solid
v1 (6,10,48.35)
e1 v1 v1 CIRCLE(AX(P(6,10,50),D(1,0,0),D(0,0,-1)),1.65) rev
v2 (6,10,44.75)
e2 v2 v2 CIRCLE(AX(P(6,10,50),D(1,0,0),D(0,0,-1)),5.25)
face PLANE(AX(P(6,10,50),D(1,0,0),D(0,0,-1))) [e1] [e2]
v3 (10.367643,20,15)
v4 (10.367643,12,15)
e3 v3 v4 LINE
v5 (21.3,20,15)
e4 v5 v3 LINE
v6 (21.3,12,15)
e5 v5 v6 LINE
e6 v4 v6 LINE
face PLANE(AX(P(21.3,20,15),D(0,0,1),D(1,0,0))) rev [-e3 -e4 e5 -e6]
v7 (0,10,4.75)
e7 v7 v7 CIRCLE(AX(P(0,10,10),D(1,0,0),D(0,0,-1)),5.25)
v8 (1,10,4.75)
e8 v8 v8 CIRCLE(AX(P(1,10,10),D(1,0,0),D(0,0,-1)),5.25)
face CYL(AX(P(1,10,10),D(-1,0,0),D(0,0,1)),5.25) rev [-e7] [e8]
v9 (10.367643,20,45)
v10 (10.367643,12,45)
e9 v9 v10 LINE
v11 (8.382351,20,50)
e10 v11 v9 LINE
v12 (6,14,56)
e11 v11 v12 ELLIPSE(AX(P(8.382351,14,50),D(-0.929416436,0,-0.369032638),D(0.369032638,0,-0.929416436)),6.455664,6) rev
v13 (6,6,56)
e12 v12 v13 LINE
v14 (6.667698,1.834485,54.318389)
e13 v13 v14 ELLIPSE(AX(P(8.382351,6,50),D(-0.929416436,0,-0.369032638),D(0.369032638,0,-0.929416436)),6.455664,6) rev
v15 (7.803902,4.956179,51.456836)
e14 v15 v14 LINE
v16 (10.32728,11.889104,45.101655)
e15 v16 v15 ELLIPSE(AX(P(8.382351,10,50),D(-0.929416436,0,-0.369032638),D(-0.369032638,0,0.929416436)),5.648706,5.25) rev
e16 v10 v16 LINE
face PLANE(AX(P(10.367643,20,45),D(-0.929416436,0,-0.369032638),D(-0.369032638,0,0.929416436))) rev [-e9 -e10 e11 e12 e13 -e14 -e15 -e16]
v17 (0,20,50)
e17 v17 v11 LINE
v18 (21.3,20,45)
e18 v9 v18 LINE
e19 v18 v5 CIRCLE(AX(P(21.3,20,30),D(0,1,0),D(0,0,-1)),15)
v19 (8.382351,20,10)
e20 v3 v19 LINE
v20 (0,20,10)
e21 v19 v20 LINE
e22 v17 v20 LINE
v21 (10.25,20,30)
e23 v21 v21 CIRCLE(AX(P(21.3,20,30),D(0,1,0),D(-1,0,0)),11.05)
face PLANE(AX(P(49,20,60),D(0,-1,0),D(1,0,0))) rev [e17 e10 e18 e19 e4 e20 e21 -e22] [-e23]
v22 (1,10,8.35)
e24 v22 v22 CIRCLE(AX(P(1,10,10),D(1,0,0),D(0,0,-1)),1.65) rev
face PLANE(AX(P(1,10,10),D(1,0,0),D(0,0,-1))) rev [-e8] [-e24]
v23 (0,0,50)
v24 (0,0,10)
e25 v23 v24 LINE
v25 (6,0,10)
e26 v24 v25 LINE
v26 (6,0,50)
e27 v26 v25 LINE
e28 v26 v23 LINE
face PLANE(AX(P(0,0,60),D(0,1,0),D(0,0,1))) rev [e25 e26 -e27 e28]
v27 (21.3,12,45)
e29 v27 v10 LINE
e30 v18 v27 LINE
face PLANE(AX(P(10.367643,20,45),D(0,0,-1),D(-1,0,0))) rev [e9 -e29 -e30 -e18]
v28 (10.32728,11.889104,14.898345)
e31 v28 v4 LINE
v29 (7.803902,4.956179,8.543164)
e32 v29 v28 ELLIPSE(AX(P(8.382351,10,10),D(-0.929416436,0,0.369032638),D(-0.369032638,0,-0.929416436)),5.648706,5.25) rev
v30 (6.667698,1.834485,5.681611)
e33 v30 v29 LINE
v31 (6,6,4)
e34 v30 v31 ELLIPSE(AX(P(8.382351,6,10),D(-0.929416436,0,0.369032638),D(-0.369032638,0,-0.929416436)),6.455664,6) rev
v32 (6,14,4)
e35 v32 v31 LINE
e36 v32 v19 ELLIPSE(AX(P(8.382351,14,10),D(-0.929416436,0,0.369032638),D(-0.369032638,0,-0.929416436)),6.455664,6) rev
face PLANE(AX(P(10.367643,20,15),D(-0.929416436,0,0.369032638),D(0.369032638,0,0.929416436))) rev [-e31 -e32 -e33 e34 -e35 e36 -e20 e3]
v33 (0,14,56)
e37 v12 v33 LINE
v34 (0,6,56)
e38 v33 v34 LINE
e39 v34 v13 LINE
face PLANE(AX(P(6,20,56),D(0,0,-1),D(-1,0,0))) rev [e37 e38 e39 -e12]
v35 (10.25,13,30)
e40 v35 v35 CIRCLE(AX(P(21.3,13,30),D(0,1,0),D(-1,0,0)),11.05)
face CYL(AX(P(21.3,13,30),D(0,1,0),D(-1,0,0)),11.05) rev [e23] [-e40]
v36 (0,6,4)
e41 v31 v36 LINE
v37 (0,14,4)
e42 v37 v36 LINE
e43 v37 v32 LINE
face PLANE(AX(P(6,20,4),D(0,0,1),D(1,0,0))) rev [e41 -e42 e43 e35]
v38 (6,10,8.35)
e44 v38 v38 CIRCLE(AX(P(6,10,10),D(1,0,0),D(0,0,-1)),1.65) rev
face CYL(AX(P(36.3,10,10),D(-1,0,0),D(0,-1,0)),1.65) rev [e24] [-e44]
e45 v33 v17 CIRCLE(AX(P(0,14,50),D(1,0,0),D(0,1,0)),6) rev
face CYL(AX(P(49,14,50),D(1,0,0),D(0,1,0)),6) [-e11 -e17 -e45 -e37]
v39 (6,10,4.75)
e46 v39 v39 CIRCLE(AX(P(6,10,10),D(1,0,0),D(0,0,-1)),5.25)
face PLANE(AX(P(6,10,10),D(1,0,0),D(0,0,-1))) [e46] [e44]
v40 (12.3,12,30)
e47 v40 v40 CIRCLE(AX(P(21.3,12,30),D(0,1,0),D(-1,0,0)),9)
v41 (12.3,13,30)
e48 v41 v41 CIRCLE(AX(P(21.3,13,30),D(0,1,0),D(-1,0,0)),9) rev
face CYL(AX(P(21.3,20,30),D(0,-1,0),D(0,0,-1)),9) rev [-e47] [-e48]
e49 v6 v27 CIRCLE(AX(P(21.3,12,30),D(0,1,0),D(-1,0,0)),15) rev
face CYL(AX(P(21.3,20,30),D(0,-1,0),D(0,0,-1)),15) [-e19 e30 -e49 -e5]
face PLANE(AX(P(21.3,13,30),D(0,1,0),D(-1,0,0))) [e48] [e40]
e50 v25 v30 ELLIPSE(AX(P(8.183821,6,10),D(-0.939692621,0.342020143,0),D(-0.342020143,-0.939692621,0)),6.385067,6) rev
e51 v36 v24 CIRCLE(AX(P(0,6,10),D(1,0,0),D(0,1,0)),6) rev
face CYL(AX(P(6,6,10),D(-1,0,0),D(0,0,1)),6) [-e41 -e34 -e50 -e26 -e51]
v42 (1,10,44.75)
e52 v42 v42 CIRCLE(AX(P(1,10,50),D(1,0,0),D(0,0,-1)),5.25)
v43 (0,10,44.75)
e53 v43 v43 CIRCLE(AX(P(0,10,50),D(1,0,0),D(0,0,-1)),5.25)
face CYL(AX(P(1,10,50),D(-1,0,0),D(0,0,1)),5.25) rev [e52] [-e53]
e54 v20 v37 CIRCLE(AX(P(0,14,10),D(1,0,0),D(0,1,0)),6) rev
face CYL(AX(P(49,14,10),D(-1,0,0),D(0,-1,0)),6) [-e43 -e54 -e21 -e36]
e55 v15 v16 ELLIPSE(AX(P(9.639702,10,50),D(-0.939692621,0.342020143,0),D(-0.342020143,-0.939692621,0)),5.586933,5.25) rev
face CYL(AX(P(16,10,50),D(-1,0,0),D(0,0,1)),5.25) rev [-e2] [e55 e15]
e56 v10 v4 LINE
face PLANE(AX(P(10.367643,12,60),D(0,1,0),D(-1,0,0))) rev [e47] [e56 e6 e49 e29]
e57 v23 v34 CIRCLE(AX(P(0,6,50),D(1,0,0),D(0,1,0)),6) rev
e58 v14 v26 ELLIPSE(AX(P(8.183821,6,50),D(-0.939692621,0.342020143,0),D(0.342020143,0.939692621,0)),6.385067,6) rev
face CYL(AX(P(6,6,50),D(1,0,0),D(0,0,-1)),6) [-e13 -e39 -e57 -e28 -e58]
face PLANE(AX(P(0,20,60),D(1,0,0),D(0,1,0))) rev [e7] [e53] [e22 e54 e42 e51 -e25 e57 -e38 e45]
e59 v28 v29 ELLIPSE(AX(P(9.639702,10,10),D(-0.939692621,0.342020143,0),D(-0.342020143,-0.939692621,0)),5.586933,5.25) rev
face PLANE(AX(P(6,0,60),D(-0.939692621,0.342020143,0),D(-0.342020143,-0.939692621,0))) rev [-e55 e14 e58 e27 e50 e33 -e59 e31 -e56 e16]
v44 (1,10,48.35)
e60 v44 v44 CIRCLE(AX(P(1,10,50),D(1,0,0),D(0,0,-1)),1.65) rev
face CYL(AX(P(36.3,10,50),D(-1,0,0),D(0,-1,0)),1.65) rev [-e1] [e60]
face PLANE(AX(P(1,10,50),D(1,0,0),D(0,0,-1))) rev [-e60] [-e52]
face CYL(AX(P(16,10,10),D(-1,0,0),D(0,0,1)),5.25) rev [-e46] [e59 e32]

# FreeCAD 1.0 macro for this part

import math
import FreeCAD as App
import Part
import Sketcher

V = App.Vector
Q = App.Units.Quantity


def edges_at(feature, points):
    """Names of the edges that pass closest to the given points."""
    edges = feature.Shape.Edges
    near = lambda p: min(range(len(edges)), key=lambda i: edges[i].distToShape(Part.Vertex(*p))[0])
    return sorted({f"Edge{near(p) + 1}" for p in points})


def add_polygon(sketch, points):
    """Adds a closed chain of lines whose ends are joined by coincident constraints."""
    first, n = sketch.GeometryCount, len(points)
    for a, b in zip(points, points[1:] + points[:1]):
        sketch.addGeometry(Part.LineSegment(App.Vector(*a, 0), App.Vector(*b, 0)), False)
    for i in range(n):
        sketch.addConstraint(Sketcher.Constraint("Coincident", first + i, 2, first + (i + 1) % n, 1))

doc = App.newDocument("Part")
params = doc.addObject("Spreadsheet::Sheet", "Params")
for row, (alias, value) in enumerate([
    ("sketch1_width", "6 mm"),
    ("sketch1_width2", "49 mm"),
    ("sketch1_height", "8 mm"),
    ("sketch1_height2", "20 mm"),
    ("pad1_length", "60 mm"),
    ("sketch2_diameter", "18 mm"),
    ("sketch2_radius", "15 mm"),
    ("sketch2_width", "6 mm"),
    ("sketch2_width2", "49 mm"),
    ("sketch2_height", "4 mm"),
    ("sketch3_diameter", "3.3 mm"),
    ("sketch4_diameter", "22.1 mm"),
    ("pocket3_length", "7 mm"),
    ("sketch5_diameter", "10.5 mm"),
    ("pocket4_length", "10 mm"),
    ("sketch6_diameter", "10.5 mm"),
    ("pocket5_length", "1 mm"),
    ("fillet_radius", "6 mm"),
], start=1):
    params.set(f"A{row}", alias)
    params.set(f"B{row}", "=" + value)
    params.setAlias(f"B{row}", alias)

body = doc.addObject("PartDesign::Body", "Body")

sketch1 = body.newObject("Sketcher::SketchObject", "Sketch")
sketch1.AttachmentSupport = (doc.getObject("XY_Plane"), [""])
sketch1.MapMode = "FlatFace"
add_polygon(sketch1, [(0, 0), (6, 0), (10, 12), (49, 12), (49, 20), (0, 20)])
sketch1.addConstraint([
    Sketcher.Constraint("Horizontal", 0),
    Sketcher.Constraint("Horizontal", 2),
    Sketcher.Constraint("Vertical", 3),
    Sketcher.Constraint("Horizontal", 4),
    Sketcher.Constraint("Vertical", 5),
    Sketcher.Constraint("Coincident", 5, 2, -1, 1),
    Sketcher.Constraint("DistanceX", 0, 1, 0, 2, 6.0),
    Sketcher.Constraint("DistanceX", 4, 2, 4, 1, 49.0),
    Sketcher.Constraint("DistanceY", 3, 1, 3, 2, 8.0),
    Sketcher.Constraint("DistanceY", 5, 2, 5, 1, 20.0),
    Sketcher.Constraint("Angle", 1, Q("70 deg")),
])
sketch1.setExpression("Constraints[12]", "Params.sketch1_width")
sketch1.setExpression("Constraints[13]", "Params.sketch1_width2")
sketch1.setExpression("Constraints[14]", "Params.sketch1_height")
sketch1.setExpression("Constraints[15]", "Params.sketch1_height2")
pad1 = body.newObject("PartDesign::Pad", "Pad")
pad1.Profile = sketch1
pad1.setExpression("Length", "Params.pad1_length")

sketch2 = body.newObject("Sketcher::SketchObject", "Sketch001")
sketch2.AttachmentSupport = (doc.getObject("XZ_Plane"), [""])
sketch2.MapMode = "FlatFace"
sketch2.AttachmentOffset = App.Placement(V(0, 0, -12), App.Rotation())
sketch2.addGeometry([
    Part.Circle(V(21.3, 30, 0), V(0, 0, 1), 9),
    Part.LineSegment(V(21.3, 15, 0), V(10.4, 15, 0)),
    Part.LineSegment(V(10.4, 15, 0), V(6, 4, 0)),
    Part.LineSegment(V(6, 4, 0), V(0, 4, 0)),
    Part.LineSegment(V(0, 4, 0), V(0, 0, 0)),
    Part.LineSegment(V(0, 0, 0), V(49, 0, 0)),
    Part.LineSegment(V(49, 0, 0), V(49, 60, 0)),
    Part.LineSegment(V(49, 60, 0), V(0, 60, 0)),
    Part.LineSegment(V(0, 60, 0), V(0, 56, 0)),
    Part.LineSegment(V(0, 56, 0), V(6, 56, 0)),
    Part.LineSegment(V(6, 56, 0), V(10.4, 45, 0)),
    Part.LineSegment(V(10.4, 45, 0), V(21.3, 45, 0)),
    Part.ArcOfCircle(Part.Circle(V(21.3, 30, 0), V(0, 0, 1), 15), math.radians(-90), math.radians(90)),
], False)
sketch2.addConstraint([
    Sketcher.Constraint("Coincident", 1, 2, 2, 1),
    Sketcher.Constraint("Coincident", 2, 2, 3, 1),
    Sketcher.Constraint("Coincident", 3, 2, 4, 1),
    Sketcher.Constraint("Coincident", 4, 2, 5, 1),
    Sketcher.Constraint("Coincident", 5, 2, 6, 1),
    Sketcher.Constraint("Coincident", 6, 2, 7, 1),
    Sketcher.Constraint("Coincident", 7, 2, 8, 1),
    Sketcher.Constraint("Coincident", 8, 2, 9, 1),
    Sketcher.Constraint("Coincident", 9, 2, 10, 1),
    Sketcher.Constraint("Coincident", 10, 2, 11, 1),
    Sketcher.Constraint("Tangent", 11, 2, 12, 2),
    Sketcher.Constraint("Tangent", 12, 1, 1, 1),
    Sketcher.Constraint("Horizontal", 1),
    Sketcher.Constraint("Horizontal", 3),
    Sketcher.Constraint("Vertical", 4),
    Sketcher.Constraint("Horizontal", 5),
    Sketcher.Constraint("Vertical", 6),
    Sketcher.Constraint("Horizontal", 7),
    Sketcher.Constraint("Vertical", 8),
    Sketcher.Constraint("Horizontal", 9),
    Sketcher.Constraint("Horizontal", 11),
    Sketcher.Constraint("Coincident", 4, 2, -1, 1),
    Sketcher.Constraint("Coincident", 12, 3, 0, 3),
    Sketcher.Constraint("PointOnObject", 7, 2, -2),
    Sketcher.Constraint("Vertical", 2, 2, 9, 2),
    Sketcher.Constraint("Vertical", 1, 2, 10, 2),
    Sketcher.Constraint("Equal", 4, 8),
    Sketcher.Constraint("Equal", 2, 10),
    Sketcher.Constraint("Diameter", 0, 18.0),
    Sketcher.Constraint("Radius", 12, 15.0),
    Sketcher.Constraint("DistanceX", 3, 2, 3, 1, 6.0),
    Sketcher.Constraint("DistanceX", 5, 1, 5, 2, 49.0),
    Sketcher.Constraint("DistanceY", 4, 2, 4, 1, 4.0),
    Sketcher.Constraint("DistanceY", 6, 1, 6, 2, 60.0),
    Sketcher.Constraint("DistanceX", -1, 1, 0, 3, 21.3),
    Sketcher.Constraint("DistanceX", 1, 2, 1, 1, 10.932357),
])
sketch2.setExpression("Constraints[28]", "Params.sketch2_diameter")
sketch2.setExpression("Constraints[29]", "Params.sketch2_radius")
sketch2.setExpression("Constraints[30]", "Params.sketch2_width")
sketch2.setExpression("Constraints[31]", "Params.sketch2_width2")
sketch2.setExpression("Constraints[32]", "Params.sketch2_height")
pocket1 = body.newObject("PartDesign::Pocket", "Pocket")
pocket1.Profile = sketch2
pocket1.Type = "ThroughAll"
pocket1.Midplane = True

sketch3 = body.newObject("Sketcher::SketchObject", "Sketch002")
sketch3.AttachmentSupport = (doc.getObject("YZ_Plane"), [""])
sketch3.MapMode = "FlatFace"
sketch3.addGeometry([
    Part.Circle(V(10, 50, 0), V(0, 0, 1), 1.6),
    Part.Circle(V(10, 10, 0), V(0, 0, 1), 1.6),
], False)
sketch3.addConstraint([
    Sketcher.Constraint("Equal", 0, 1),
    Sketcher.Constraint("Vertical", 0, 3, 1, 3),
    Sketcher.Constraint("Diameter", 0, 3.3),
    Sketcher.Constraint("DistanceX", -1, 1, 0, 3, 10.0),
    Sketcher.Constraint("DistanceY", -1, 1, 0, 3, 50.0),
    Sketcher.Constraint("DistanceY", -1, 1, 1, 3, 10.0),
])
sketch3.setExpression("Constraints[2]", "Params.sketch3_diameter")
pocket2 = body.newObject("PartDesign::Pocket", "Pocket001")
pocket2.Profile = sketch3
pocket2.Type = "ThroughAll"
pocket2.Reversed = True

sketch4 = body.newObject("Sketcher::SketchObject", "Sketch003")
sketch4.AttachmentSupport = (doc.getObject("XZ_Plane"), [""])
sketch4.MapMode = "FlatFace"
sketch4.AttachmentOffset = App.Placement(V(0, 0, -20), App.Rotation())
sketch4.addGeometry(Part.Circle(V(21, 30, 0), V(0, 0, 1), 11), False)
sketch4.addConstraint([
    Sketcher.Constraint("Diameter", 0, 22.1),
    Sketcher.Constraint("DistanceY", -1, 1, 0, 3, 30.0),
    Sketcher.Constraint("DistanceX", -1, 1, 0, 3, 21.3),
])
sketch4.setExpression("Constraints[0]", "Params.sketch4_diameter")
pocket3 = body.newObject("PartDesign::Pocket", "Pocket002")
pocket3.Profile = sketch4
pocket3.setExpression("Length", "Params.pocket3_length")
pocket3.Reversed = True

sketch5 = body.newObject("Sketcher::SketchObject", "Sketch004")
sketch5.AttachmentSupport = (doc.getObject("YZ_Plane"), [""])
sketch5.MapMode = "FlatFace"
sketch5.AttachmentOffset = App.Placement(V(0, 0, 6), App.Rotation())
sketch5.addGeometry([
    Part.Circle(V(10, 50, 0), V(0, 0, 1), 5),
    Part.Circle(V(10, 10, 0), V(0, 0, 1), 5),
], False)
sketch5.addConstraint([
    Sketcher.Constraint("Equal", 0, 1),
    Sketcher.Constraint("Vertical", 0, 3, 1, 3),
    Sketcher.Constraint("Diameter", 0, 10.5),
    Sketcher.Constraint("DistanceX", -1, 1, 0, 3, 10.0),
    Sketcher.Constraint("DistanceY", -1, 1, 0, 3, 50.0),
    Sketcher.Constraint("DistanceY", -1, 1, 1, 3, 10.0),
])
sketch5.setExpression("Constraints[2]", "Params.sketch5_diameter")
pocket4 = body.newObject("PartDesign::Pocket", "Pocket003")
pocket4.Profile = sketch5
pocket4.setExpression("Length", "Params.pocket4_length")
pocket4.Reversed = True

sketch6 = body.newObject("Sketcher::SketchObject", "Sketch005")
sketch6.AttachmentSupport = (doc.getObject("YZ_Plane"), [""])
sketch6.MapMode = "FlatFace"
sketch6.addGeometry([
    Part.Circle(V(10, 50, 0), V(0, 0, 1), 5),
    Part.Circle(V(10, 10, 0), V(0, 0, 1), 5),
], False)
sketch6.addConstraint([
    Sketcher.Constraint("Equal", 0, 1),
    Sketcher.Constraint("Vertical", 0, 3, 1, 3),
    Sketcher.Constraint("Diameter", 0, 10.5),
    Sketcher.Constraint("DistanceX", -1, 1, 0, 3, 10.0),
    Sketcher.Constraint("DistanceY", -1, 1, 0, 3, 50.0),
    Sketcher.Constraint("DistanceY", -1, 1, 1, 3, 10.0),
])
sketch6.setExpression("Constraints[2]", "Params.sketch6_diameter")
pocket5 = body.newObject("PartDesign::Pocket", "Pocket004")
pocket5.Profile = sketch6
pocket5.setExpression("Length", "Params.pocket5_length")
pocket5.Reversed = True
doc.recompute()

fillet = body.newObject("PartDesign::Fillet", "Fillet")
fillet.Base = (pocket5, edges_at(pocket5, [
    (3, 0, 4),
    (3, 0, 56),
    (3, 20, 4),
    (3, 20, 56),
]))
fillet.setExpression("Radius", "Params.fillet_radius")

doc.recompute()
